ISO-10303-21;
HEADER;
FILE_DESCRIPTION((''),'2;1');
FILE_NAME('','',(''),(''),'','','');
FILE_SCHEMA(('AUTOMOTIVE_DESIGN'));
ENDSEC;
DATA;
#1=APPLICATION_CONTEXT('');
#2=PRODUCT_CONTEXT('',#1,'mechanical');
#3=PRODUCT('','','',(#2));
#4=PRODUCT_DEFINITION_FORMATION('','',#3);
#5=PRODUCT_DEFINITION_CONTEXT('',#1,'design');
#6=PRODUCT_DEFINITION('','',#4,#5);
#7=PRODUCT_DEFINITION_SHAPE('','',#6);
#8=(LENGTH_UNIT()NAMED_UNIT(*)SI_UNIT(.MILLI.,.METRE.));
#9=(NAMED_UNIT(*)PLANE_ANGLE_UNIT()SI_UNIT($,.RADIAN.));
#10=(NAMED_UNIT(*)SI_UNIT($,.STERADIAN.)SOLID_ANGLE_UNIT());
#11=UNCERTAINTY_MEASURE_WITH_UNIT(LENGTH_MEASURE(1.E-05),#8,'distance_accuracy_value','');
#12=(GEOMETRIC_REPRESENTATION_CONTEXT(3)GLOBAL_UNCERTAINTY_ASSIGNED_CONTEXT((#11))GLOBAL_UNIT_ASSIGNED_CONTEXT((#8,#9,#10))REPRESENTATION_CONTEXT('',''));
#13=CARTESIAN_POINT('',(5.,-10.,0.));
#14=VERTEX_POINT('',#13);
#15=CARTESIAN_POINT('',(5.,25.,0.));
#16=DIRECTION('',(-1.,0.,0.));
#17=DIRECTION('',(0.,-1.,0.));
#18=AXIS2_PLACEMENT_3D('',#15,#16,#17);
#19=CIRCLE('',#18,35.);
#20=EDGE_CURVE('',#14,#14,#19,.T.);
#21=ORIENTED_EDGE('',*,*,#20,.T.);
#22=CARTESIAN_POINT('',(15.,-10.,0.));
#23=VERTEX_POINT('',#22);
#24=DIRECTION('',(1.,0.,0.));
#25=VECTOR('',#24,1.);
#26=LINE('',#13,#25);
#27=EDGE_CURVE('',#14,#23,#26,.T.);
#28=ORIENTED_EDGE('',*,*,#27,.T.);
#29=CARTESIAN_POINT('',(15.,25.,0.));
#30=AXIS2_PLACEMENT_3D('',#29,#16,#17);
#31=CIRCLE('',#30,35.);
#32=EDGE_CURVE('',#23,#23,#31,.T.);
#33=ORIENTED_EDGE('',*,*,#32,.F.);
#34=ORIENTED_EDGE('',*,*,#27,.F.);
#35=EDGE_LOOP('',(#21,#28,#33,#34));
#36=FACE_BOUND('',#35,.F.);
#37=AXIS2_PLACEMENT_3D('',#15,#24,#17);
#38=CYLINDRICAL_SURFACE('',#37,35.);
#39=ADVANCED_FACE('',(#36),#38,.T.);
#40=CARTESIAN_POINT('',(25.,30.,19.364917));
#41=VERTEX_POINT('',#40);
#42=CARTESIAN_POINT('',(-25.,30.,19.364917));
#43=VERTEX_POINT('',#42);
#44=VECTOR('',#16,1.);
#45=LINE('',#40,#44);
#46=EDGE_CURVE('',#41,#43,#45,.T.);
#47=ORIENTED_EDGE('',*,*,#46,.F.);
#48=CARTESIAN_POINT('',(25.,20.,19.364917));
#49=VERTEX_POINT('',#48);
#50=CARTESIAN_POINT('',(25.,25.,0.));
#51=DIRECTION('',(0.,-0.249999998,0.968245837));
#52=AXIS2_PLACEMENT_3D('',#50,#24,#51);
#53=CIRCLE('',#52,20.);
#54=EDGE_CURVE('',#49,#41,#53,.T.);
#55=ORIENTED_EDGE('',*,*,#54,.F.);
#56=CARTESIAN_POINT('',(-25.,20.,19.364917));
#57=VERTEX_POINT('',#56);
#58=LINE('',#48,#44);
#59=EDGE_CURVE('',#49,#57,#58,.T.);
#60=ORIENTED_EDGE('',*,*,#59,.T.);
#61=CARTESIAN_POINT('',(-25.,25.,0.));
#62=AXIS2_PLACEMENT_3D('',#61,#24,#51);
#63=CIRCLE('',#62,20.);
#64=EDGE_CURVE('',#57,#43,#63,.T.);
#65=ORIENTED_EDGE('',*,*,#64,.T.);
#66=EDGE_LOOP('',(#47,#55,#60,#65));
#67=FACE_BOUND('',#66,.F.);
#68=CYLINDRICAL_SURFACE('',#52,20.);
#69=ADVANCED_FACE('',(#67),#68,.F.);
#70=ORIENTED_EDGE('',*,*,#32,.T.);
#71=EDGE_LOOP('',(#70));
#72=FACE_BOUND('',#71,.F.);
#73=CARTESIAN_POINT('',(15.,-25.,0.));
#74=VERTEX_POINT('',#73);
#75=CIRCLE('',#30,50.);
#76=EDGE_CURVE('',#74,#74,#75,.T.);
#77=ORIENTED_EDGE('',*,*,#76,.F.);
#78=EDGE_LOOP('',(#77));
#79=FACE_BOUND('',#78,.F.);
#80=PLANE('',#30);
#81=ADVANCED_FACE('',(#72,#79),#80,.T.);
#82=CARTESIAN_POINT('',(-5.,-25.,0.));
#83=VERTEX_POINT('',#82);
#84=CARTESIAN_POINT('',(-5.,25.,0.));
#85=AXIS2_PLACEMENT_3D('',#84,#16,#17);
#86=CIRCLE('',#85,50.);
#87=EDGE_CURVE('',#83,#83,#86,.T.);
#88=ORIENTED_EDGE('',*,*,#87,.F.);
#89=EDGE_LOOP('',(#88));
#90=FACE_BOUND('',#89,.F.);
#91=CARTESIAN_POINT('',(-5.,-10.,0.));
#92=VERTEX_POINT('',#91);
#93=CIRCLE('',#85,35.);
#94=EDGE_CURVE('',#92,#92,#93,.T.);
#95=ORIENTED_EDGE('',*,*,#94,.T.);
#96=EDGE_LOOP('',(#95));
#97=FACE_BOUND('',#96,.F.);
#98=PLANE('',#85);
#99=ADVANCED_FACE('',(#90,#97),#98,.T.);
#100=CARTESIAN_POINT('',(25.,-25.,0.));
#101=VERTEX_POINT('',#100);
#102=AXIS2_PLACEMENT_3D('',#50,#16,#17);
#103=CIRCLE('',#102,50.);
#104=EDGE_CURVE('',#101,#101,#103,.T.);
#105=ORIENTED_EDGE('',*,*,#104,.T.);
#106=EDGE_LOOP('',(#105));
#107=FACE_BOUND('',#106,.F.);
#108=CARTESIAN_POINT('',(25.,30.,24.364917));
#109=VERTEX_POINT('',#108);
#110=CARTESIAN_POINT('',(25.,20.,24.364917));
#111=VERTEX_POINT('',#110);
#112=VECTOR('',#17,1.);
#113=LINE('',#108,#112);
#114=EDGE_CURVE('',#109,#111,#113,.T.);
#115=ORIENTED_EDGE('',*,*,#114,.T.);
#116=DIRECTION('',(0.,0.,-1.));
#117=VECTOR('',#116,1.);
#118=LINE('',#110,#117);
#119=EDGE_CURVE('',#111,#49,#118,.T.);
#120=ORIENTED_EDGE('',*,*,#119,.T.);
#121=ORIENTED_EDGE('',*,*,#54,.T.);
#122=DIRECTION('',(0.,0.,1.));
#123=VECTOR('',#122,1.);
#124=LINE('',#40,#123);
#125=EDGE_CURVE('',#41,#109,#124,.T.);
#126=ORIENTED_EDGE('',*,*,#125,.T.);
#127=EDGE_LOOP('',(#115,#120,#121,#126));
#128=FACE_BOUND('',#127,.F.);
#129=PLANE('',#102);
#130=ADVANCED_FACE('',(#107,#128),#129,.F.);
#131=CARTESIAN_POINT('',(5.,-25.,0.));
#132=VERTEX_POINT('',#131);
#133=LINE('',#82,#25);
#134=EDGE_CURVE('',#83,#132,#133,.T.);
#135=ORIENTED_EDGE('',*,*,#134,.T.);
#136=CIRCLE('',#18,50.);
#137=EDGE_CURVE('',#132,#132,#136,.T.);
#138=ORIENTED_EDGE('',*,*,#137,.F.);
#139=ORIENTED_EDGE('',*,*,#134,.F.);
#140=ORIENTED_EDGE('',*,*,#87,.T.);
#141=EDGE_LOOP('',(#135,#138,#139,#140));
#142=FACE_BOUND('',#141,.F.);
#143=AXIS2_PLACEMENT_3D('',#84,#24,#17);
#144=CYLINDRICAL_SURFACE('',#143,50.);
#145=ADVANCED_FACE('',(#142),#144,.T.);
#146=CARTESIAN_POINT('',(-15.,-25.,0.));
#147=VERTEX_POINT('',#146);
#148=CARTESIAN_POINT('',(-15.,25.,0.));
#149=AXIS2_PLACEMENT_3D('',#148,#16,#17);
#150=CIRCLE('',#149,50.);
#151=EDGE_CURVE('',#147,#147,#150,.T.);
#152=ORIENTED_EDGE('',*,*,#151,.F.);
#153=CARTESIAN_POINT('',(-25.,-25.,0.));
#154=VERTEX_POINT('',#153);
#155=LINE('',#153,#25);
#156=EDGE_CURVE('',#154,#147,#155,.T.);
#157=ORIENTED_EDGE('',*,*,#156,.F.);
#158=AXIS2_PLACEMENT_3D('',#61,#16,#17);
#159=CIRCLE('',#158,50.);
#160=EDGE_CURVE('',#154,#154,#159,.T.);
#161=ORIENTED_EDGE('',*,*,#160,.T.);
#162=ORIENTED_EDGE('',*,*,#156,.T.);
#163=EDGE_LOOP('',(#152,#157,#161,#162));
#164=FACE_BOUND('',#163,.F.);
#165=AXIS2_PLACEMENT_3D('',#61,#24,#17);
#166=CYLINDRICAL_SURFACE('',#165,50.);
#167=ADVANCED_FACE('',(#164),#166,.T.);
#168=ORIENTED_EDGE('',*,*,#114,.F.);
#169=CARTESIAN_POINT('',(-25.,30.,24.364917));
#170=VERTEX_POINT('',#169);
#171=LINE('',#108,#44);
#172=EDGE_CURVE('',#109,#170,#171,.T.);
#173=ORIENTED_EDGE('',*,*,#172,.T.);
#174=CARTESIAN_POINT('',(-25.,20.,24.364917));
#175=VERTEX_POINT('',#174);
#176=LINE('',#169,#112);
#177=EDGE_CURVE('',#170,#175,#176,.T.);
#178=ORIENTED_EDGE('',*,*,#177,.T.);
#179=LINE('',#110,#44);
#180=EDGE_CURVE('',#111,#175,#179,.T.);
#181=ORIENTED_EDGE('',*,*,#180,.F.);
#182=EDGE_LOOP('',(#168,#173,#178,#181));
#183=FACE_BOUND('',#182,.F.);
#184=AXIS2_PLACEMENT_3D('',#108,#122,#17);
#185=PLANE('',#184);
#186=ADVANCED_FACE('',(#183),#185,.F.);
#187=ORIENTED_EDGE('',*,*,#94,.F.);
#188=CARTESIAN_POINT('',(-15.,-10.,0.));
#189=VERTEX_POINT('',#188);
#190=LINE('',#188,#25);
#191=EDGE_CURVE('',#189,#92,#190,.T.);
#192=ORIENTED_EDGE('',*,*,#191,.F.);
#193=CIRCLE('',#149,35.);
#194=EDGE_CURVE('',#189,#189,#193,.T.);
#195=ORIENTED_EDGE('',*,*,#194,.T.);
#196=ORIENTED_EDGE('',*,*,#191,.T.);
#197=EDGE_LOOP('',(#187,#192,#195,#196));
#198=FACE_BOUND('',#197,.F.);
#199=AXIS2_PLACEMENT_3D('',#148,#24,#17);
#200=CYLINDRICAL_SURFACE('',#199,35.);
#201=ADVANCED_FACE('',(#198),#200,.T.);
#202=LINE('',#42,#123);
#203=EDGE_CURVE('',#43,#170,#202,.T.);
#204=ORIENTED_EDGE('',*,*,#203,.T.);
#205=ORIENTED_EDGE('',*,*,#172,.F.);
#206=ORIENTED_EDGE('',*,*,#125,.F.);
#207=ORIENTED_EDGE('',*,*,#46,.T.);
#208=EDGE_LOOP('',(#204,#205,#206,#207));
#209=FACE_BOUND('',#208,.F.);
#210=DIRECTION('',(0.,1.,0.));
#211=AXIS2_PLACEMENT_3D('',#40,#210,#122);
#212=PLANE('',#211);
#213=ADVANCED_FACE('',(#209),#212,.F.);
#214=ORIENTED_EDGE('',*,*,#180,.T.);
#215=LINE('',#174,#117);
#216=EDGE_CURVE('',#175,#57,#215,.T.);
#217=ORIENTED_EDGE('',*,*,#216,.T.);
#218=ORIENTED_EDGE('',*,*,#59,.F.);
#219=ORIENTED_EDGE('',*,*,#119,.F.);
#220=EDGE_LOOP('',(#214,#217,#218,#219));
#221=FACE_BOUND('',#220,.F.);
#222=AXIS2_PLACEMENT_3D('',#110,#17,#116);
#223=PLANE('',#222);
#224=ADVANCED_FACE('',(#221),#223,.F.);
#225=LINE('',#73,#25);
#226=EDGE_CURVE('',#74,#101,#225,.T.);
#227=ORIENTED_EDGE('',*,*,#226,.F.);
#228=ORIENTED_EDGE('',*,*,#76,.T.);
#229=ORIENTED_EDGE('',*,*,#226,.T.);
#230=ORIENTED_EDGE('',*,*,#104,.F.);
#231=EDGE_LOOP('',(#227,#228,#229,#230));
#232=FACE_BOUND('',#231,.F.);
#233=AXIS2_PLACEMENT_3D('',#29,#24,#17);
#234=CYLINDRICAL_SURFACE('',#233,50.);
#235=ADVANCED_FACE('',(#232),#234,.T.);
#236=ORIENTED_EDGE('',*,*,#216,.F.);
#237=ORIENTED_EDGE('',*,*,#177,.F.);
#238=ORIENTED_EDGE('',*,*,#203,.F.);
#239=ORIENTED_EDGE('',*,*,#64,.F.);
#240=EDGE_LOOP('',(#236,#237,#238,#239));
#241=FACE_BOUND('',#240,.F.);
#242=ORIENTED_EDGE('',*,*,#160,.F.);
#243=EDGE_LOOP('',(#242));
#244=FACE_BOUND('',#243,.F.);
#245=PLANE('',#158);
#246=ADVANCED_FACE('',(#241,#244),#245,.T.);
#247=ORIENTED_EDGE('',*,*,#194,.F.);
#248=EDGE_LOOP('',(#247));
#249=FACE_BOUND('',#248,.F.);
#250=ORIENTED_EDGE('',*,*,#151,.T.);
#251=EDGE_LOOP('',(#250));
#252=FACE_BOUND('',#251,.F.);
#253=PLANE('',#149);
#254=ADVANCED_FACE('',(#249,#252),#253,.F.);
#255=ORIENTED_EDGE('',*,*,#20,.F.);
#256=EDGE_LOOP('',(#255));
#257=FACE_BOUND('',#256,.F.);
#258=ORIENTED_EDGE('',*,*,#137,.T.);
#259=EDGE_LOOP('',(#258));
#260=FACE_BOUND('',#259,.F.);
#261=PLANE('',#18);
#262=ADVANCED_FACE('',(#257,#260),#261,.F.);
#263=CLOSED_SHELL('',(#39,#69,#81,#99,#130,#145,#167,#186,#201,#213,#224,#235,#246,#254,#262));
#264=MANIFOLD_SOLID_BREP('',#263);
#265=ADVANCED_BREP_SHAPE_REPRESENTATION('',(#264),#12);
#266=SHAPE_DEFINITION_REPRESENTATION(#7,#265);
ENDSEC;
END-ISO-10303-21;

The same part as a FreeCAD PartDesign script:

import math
import FreeCAD as App
import Part
import Sketcher

V = App.Vector
Q = App.Units.Quantity

doc = App.newDocument("Part")
body = doc.addObject("PartDesign::Body", "Body")

# Sketch on XY plane
sketch1 = doc.addObject("Sketcher::SketchObject", "Sketch")
body.addObject(sketch1)
sketch1.AttachmentSupport = (doc.XY_Plane, [""])
sketch1.MapMode = "FlatFace"
sketch1.addGeometry([
    Part.LineSegment(V(15, -25, 0), V(25, -25, 0)),  # 0
    Part.LineSegment(V(25, -25, 0), V(25, 25, 0)),  # 1
    Part.LineSegment(V(25, 25, 0), V(-25, 25, 0)),  # 2
    Part.LineSegment(V(-25, 25, 0), V(-25, -25, 0)),  # 3
    Part.LineSegment(V(-25, -25, 0), V(-15, -25, 0)),  # 4
    Part.LineSegment(V(-15, -25, 0), V(-15, -10, 0)),  # 5
    Part.LineSegment(V(-15, -10, 0), V(-5, -10, 0)),  # 6
    Part.LineSegment(V(-5, -10, 0), V(-5, -25, 0)),  # 7
    Part.LineSegment(V(-5, -25, 0), V(5, -25, 0)),  # 8
    Part.LineSegment(V(5, -25, 0), V(5, -10, 0)),  # 9
    Part.LineSegment(V(5, -10, 0), V(15, -10, 0)),  # 10
    Part.LineSegment(V(15, -10, 0), V(15, -25, 0)),  # 11
], False)
sketch1.addGeometry(Part.LineSegment(V(25, 25, 0), V(-25, 25, 0)), True)  # axis
sketch1.addConstraint([
    Sketcher.Constraint("Coincident", 0, 2, 1, 1),
    Sketcher.Constraint("Coincident", 1, 2, 2, 1),
    Sketcher.Constraint("Coincident", 2, 2, 3, 1),
    Sketcher.Constraint("Coincident", 3, 2, 4, 1),
    Sketcher.Constraint("Coincident", 4, 2, 5, 1),
    Sketcher.Constraint("Coincident", 5, 2, 6, 1),
    Sketcher.Constraint("Coincident", 6, 2, 7, 1),
    Sketcher.Constraint("Coincident", 7, 2, 8, 1),
    Sketcher.Constraint("Coincident", 8, 2, 9, 1),
    Sketcher.Constraint("Coincident", 9, 2, 10, 1),
    Sketcher.Constraint("Coincident", 10, 2, 11, 1),
    Sketcher.Constraint("Coincident", 11, 2, 0, 1),
    Sketcher.Constraint("Horizontal", 0),
    Sketcher.Constraint("Vertical", 1),
    Sketcher.Constraint("Horizontal", 2),
    Sketcher.Constraint("Vertical", 3),
    Sketcher.Constraint("Horizontal", 4),
    Sketcher.Constraint("Vertical", 5),
    Sketcher.Constraint("Horizontal", 6),
    Sketcher.Constraint("Vertical", 7),
    Sketcher.Constraint("Horizontal", 8),
    Sketcher.Constraint("Vertical", 9),
    Sketcher.Constraint("Horizontal", 10),
    Sketcher.Constraint("Vertical", 11),
    Sketcher.Constraint("Horizontal", 12),
    Sketcher.Constraint("Coincident", 12, 1, 1, 2),
    Sketcher.Constraint("Symmetric", 0, 2, 2, 2, -1, 1),
    Sketcher.Constraint("Symmetric", 6, 2, 9, 2, -2),
    Sketcher.Constraint("Symmetric", 4, 2, 11, 2, -2),
    Sketcher.Constraint("Horizontal", 4, 2, 7, 2),
    Sketcher.Constraint("Vertical", 3, 2, 12, 2),
    Sketcher.Constraint("Equal", 4, 6),
    Sketcher.Constraint("Equal", 6, 8),
    Sketcher.Constraint("Equal", 12, 1),
    Sketcher.Constraint("DistanceX", 0, 1, 0, 2, Q("10 mm")),
    Sketcher.Constraint("DistanceY", 5, 1, 5, 2, Q("15 mm")),
])
revolution = doc.addObject("PartDesign::Revolution", "Revolution")
body.addObject(revolution)
revolution.Profile = sketch1
revolution.ReferenceAxis = (sketch1, ["Axis0"])
revolution.Angle = 360

# Sketch on YZ plane
sketch2 = doc.addObject("Sketcher::SketchObject", "Sketch001")
body.addObject(sketch2)
sketch2.AttachmentSupport = (doc.YZ_Plane, [""])
sketch2.MapMode = "FlatFace"
sketch2.AttachmentOffset = App.Placement(V(0, 0, 25), App.Rotation())
sketch2.addGeometry([
    Part.LineSegment(V(20, 24, 0), V(20, 19, 0)),
    Part.ArcOfCircle(Part.Circle(V(25, 0, 0), V(0, 0, 1), 20), math.radians(104), math.radians(436)),
    Part.LineSegment(V(30, 19, 0), V(30, 24, 0)),
    Part.LineSegment(V(30, 24, 0), V(20, 24, 0)),
], False)
sketch2.addConstraint([
    Sketcher.Constraint("Coincident", 0, 2, 1, 1),
    Sketcher.Constraint("Coincident", 1, 2, 2, 1),
    Sketcher.Constraint("Coincident", 2, 2, 3, 1),
    Sketcher.Constraint("Coincident", 3, 2, 0, 1),
    Sketcher.Constraint("Vertical", 0),
    Sketcher.Constraint("Vertical", 2),
    Sketcher.Constraint("Horizontal", 3),
    Sketcher.Constraint("PointOnObject", 1, 3, -1),
    Sketcher.Constraint("Horizontal", 0, 2, 1, 2),
    Sketcher.Constraint("Radius", 1, Q("20 mm")),
    Sketcher.Constraint("DistanceX", 3, 2, 3, 1, Q("10 mm")),
    Sketcher.Constraint("DistanceY", 0, 2, 0, 1, Q("5 mm")),
    Sketcher.Constraint("DistanceX", -1, 1, 1, 3, Q("25 mm")),
])
pocket1 = doc.addObject("PartDesign::Pocket", "Pocket")
body.addObject(pocket1)
pocket1.Profile = sketch2
pocket1.Length = 50

doc.recompute()
